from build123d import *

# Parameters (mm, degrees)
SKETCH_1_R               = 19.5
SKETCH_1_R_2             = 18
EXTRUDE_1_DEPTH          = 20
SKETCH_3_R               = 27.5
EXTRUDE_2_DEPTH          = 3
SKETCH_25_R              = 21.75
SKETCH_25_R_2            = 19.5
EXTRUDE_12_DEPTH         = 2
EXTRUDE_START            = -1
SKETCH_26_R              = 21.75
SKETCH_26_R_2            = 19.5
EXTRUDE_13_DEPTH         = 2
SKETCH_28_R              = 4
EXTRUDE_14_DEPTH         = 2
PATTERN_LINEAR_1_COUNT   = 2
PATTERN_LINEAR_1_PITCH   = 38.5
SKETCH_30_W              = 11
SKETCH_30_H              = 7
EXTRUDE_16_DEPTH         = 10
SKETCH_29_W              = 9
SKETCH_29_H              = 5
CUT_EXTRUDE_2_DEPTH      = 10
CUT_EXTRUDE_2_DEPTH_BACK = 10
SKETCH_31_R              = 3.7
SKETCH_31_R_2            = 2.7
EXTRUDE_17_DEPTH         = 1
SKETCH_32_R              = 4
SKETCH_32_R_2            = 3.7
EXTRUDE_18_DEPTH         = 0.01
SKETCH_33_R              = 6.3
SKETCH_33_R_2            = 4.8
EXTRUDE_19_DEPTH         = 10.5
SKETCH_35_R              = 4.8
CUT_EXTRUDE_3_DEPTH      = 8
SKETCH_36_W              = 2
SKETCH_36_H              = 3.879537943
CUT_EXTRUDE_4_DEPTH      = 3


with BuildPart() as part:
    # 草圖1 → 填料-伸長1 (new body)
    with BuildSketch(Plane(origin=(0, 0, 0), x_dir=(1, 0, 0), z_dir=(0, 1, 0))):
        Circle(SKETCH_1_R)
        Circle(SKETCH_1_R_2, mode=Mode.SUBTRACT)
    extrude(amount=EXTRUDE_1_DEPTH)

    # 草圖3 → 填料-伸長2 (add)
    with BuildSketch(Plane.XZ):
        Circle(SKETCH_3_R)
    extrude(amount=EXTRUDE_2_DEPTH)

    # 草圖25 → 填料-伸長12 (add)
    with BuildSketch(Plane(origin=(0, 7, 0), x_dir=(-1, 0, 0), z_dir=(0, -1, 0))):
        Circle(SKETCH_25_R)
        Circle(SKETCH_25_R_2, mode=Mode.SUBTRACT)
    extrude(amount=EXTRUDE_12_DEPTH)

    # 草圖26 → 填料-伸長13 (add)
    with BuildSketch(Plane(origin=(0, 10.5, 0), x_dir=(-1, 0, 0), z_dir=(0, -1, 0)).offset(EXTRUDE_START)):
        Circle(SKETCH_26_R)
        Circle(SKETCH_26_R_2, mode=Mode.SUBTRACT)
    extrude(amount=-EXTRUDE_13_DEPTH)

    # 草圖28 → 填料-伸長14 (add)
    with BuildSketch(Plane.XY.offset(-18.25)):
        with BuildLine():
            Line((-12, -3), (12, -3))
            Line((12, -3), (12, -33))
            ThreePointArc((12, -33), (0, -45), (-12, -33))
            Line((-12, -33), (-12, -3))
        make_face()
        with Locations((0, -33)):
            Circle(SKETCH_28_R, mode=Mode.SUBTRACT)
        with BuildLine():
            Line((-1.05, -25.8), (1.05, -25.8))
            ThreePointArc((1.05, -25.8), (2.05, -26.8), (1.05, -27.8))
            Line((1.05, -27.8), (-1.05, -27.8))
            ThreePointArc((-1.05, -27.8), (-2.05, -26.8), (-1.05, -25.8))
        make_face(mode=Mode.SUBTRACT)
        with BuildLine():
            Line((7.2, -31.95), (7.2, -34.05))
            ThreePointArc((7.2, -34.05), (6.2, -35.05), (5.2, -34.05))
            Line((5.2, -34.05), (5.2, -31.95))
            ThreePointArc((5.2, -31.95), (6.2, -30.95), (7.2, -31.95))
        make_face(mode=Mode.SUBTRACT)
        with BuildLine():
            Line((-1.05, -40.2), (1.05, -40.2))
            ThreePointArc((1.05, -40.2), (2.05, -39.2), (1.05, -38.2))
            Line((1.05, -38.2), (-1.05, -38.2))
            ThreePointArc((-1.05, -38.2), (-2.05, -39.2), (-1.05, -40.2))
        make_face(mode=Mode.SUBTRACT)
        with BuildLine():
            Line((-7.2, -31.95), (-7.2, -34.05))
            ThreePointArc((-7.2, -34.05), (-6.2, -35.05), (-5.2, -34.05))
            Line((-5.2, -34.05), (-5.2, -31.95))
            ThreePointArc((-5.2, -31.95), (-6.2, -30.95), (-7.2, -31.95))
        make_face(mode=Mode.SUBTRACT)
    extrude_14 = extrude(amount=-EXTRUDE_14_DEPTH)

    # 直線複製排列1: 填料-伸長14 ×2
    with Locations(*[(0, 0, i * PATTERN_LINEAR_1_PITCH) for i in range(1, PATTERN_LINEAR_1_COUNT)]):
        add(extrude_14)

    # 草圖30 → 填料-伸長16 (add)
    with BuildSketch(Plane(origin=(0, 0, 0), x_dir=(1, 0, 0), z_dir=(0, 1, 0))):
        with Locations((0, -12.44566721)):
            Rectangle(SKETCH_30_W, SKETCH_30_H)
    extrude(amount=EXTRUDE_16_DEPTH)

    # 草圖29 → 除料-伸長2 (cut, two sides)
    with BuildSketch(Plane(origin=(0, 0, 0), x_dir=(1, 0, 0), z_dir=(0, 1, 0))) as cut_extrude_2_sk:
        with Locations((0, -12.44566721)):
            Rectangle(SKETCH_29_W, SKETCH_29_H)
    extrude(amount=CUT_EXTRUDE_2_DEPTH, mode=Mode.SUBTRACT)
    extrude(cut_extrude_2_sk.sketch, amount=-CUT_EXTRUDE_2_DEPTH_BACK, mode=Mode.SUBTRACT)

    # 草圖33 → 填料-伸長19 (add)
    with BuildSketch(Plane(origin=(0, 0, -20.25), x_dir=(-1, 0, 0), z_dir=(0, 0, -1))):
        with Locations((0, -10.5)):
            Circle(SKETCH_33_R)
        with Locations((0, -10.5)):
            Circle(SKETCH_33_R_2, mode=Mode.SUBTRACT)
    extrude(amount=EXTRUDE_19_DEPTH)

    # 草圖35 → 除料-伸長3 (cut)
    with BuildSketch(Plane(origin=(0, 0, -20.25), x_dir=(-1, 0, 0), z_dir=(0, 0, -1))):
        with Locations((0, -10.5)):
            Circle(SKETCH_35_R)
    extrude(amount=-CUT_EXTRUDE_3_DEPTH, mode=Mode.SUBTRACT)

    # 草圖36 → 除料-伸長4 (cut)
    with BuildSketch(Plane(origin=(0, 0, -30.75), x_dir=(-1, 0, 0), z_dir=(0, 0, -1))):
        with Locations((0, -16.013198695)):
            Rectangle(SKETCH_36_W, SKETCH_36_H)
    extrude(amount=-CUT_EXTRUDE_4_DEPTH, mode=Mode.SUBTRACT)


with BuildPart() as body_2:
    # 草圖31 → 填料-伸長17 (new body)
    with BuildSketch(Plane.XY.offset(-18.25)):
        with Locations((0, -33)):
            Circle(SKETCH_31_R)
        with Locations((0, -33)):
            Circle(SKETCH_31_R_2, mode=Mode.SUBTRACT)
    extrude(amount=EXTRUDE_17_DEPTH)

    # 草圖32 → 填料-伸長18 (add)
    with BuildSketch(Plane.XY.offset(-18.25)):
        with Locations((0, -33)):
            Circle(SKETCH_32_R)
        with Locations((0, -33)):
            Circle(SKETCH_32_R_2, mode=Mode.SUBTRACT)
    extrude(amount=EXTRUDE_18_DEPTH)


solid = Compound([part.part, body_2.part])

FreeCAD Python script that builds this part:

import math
import FreeCAD as App
import Part
import Sketcher

V = App.Vector

doc = App.newDocument("Part")
params = doc.addObject("Spreadsheet::Sheet", "Params")
for row, (alias, value) in enumerate([
    ("sketch1_diameter", "39 mm"),
    ("sketch1_diameter2", "36 mm"),
    ("pad1_length", "20 mm"),
    ("sketch2_diameter", "55 mm"),
    ("pad2_length", "3 mm"),
    ("sketch3_diameter", "39 mm"),
    ("sketch3_diameter2", "43.5 mm"),
    ("pad3_length", "2 mm"),
    ("sketch4_diameter", "39 mm"),
    ("sketch4_diameter2", "43.5 mm"),
    ("pad4_length", "2 mm"),
    ("sketch5_diameter", "8 mm"),
    ("sketch5_radius", "12 mm"),
    ("sketch5_radius2", "1 mm"),
    ("sketch5_height", "30 mm"),
    ("sketch5_width", "2.1 mm"),
    ("pad5_length", "2 mm"),
    ("linearpattern_pitch", "38.5 mm"),
    ("sketch6_width", "11 mm"),
    ("sketch6_height", "7 mm"),
    ("pad6_length", "10 mm"),
    ("sketch7_width", "9 mm"),
    ("sketch7_height", "5 mm"),
    ("sketch8_diameter", "12.6 mm"),
    ("sketch8_diameter2", "9.6 mm"),
    ("pad7_length", "10.5 mm"),
    ("sketch9_diameter", "9.6 mm"),
    ("pocket2_length", "8 mm"),
    ("sketch10_width", "2 mm"),
    ("pocket3_length", "3 mm"),
    ("sketch11_diameter", "7.4 mm"),
    ("sketch11_diameter2", "5.4 mm"),
    ("pad8_length", "1 mm"),
    ("sketch12_diameter", "8 mm"),
    ("sketch12_diameter2", "7.4 mm"),
    ("pad9_length", "0.01 mm"),
], start=1):
    params.set(f"A{row}", alias)
    params.set(f"B{row}", "=" + value)
    params.setAlias(f"B{row}", alias)

body = doc.addObject("PartDesign::Body", "Body")

sketch1 = body.newObject("Sketcher::SketchObject", "Sketch")
sketch1.AttachmentSupport = (doc.getObject("XZ_Plane"), [""])
sketch1.MapMode = "FlatFace"
sketch1.addGeometry([
    Part.Circle(V(0, 0, 0), V(0, 0, 1), 20),
    Part.Circle(V(0, 0, 0), V(0, 0, 1), 18),
], False)
sketch1.addConstraint([
    Sketcher.Constraint("Coincident", 0, 3, -1, 1),
    Sketcher.Constraint("Coincident", 1, 3, -1, 1),
    Sketcher.Constraint("Diameter", 0, 39.0),
    Sketcher.Constraint("Diameter", 1, 36.0),
])
sketch1.setExpression("Constraints[2]", "Params.sketch1_diameter")
sketch1.setExpression("Constraints[3]", "Params.sketch1_diameter2")
pad1 = body.newObject("PartDesign::Pad", "Pad")
pad1.Profile = sketch1
pad1.setExpression("Length", "Params.pad1_length")
pad1.Reversed = True

sketch2 = body.newObject("Sketcher::SketchObject", "Sketch001")
sketch2.AttachmentSupport = (doc.getObject("XZ_Plane"), [""])
sketch2.MapMode = "FlatFace"
sketch2.addGeometry(Part.Circle(V(0, 0, 0), V(0, 0, 1), 28), False)
sketch2.addConstraint([
    Sketcher.Constraint("Coincident", 0, 3, -1, 1),
    Sketcher.Constraint("Diameter", 0, 55.0),
])
sketch2.setExpression("Constraints[1]", "Params.sketch2_diameter")
pad2 = body.newObject("PartDesign::Pad", "Pad001")
pad2.Profile = sketch2
pad2.setExpression("Length", "Params.pad2_length")

sketch3 = body.newObject("Sketcher::SketchObject", "Sketch002")
sketch3.AttachmentSupport = (doc.getObject("XZ_Plane"), [""])
sketch3.MapMode = "FlatFace"
sketch3.AttachmentOffset = App.Placement(V(0, 0, -7), App.Rotation())
sketch3.addGeometry([
    Part.Circle(V(0, 0, 0), V(0, 0, 1), 22),
    Part.Circle(V(0, 0, 0), V(0, 0, 1), 20),
], False)
sketch3.addConstraint([
    Sketcher.Constraint("Coincident", 0, 3, -1, 1),
    Sketcher.Constraint("Coincident", 1, 3, -1, 1),
    Sketcher.Constraint("Diameter", 1, 39.0),
    Sketcher.Constraint("Diameter", 0, 43.5),
])
sketch3.setExpression("Constraints[2]", "Params.sketch3_diameter")
sketch3.setExpression("Constraints[3]", "Params.sketch3_diameter2")
pad3 = body.newObject("PartDesign::Pad", "Pad002")
pad3.Profile = sketch3
pad3.setExpression("Length", "Params.pad3_length")

sketch4 = body.newObject("Sketcher::SketchObject", "Sketch003")
sketch4.AttachmentSupport = (doc.getObject("XZ_Plane"), [""])
sketch4.MapMode = "FlatFace"
sketch4.AttachmentOffset = App.Placement(V(0, 0, -11.5), App.Rotation())
sketch4.addGeometry([
    Part.Circle(V(0, 0, 0), V(0, 0, 1), 22),
    Part.Circle(V(0, 0, 0), V(0, 0, 1), 20),
], False)
sketch4.addConstraint([
    Sketcher.Constraint("Coincident", 0, 3, -1, 1),
    Sketcher.Constraint("Coincident", 1, 3, -1, 1),
    Sketcher.Constraint("Diameter", 1, 39.0),
    Sketcher.Constraint("Diameter", 0, 43.5),
])
sketch4.setExpression("Constraints[2]", "Params.sketch4_diameter")
sketch4.setExpression("Constraints[3]", "Params.sketch4_diameter2")
pad4 = body.newObject("PartDesign::Pad", "Pad003")
pad4.Profile = sketch4
pad4.setExpression("Length", "Params.pad4_length")
pad4.Reversed = True

sketch5 = body.newObject("Sketcher::SketchObject", "Sketch004")
sketch5.AttachmentSupport = (doc.getObject("XY_Plane"), [""])
sketch5.MapMode = "FlatFace"
sketch5.AttachmentOffset = App.Placement(V(0, 0, -18.25), App.Rotation())
sketch5.addGeometry([
    Part.LineSegment(V(12, -3, 0), V(-12, -3, 0)),
    Part.LineSegment(V(-12, -3, 0), V(-12, -33, 0)),
    Part.ArcOfCircle(Part.Circle(V(0, -33, 0), V(0, 0, 1), 12), math.radians(180), math.radians(360)),
    Part.LineSegment(V(12, -33, 0), V(12, -3, 0)),
    Part.ArcOfCircle(Part.Circle(V(-1.1, -39.2, 0), V(0, 0, 1), 1), math.radians(90), math.radians(270)),
    Part.LineSegment(V(-1.1, -38.2, 0), V(1.1, -38.2, 0)),
    Part.ArcOfCircle(Part.Circle(V(1.1, -39.2, 0), V(0, 0, 1), 1), math.radians(-90), math.radians(90)),
    Part.LineSegment(V(1.1, -40.2, 0), V(-1.1, -40.2, 0)),
    Part.LineSegment(V(7.2, -31.9, 0), V(7.2, -34, 0)),
    Part.ArcOfCircle(Part.Circle(V(6.2, -34, 0), V(0, 0, 1), 1), math.radians(180), math.radians(360)),
    Part.LineSegment(V(5.2, -34, 0), V(5.2, -31.9, 0)),
    Part.ArcOfCircle(Part.Circle(V(6.2, -31.9, 0), V(0, 0, 1), 1), math.radians(0), math.radians(180)),
    Part.Circle(V(0, -33, 0), V(0, 0, 1), 4),
    Part.ArcOfCircle(Part.Circle(V(-6.2, -31.9, 0), V(0, 0, 1), 1), math.radians(0), math.radians(180)),
    Part.LineSegment(V(-5.2, -31.9, 0), V(-5.2, -34, 0)),
    Part.ArcOfCircle(Part.Circle(V(-6.2, -34, 0), V(0, 0, 1), 1), math.radians(180), math.radians(360)),
    Part.LineSegment(V(-7.2, -34, 0), V(-7.2, -31.9, 0)),
    Part.LineSegment(V(-1.1, -25.8, 0), V(1.1, -25.8, 0)),
    Part.ArcOfCircle(Part.Circle(V(1.1, -26.8, 0), V(0, 0, 1), 1), math.radians(-90), math.radians(90)),
    Part.LineSegment(V(1.1, -27.8, 0), V(-1.1, -27.8, 0)),
    Part.ArcOfCircle(Part.Circle(V(-1.1, -26.8, 0), V(0, 0, 1), 1), math.radians(90), math.radians(270)),
], False)
sketch5.addConstraint([
    Sketcher.Constraint("Coincident", 0, 2, 1, 1),
    Sketcher.Constraint("Tangent", 1, 2, 2, 1),
    Sketcher.Constraint("Tangent", 2, 2, 3, 1),
    Sketcher.Constraint("Coincident", 3, 2, 0, 1),
    Sketcher.Constraint("Tangent", 4, 1, 5, 1),
    Sketcher.Constraint("Tangent", 5, 2, 6, 2),
    Sketcher.Constraint("Tangent", 6, 1, 7, 1),
    Sketcher.Constraint("Tangent", 7, 2, 4, 2),
    Sketcher.Constraint("Tangent", 8, 2, 9, 2),
    Sketcher.Constraint("Tangent", 9, 1, 10, 1),
    Sketcher.Constraint("Tangent", 10, 2, 11, 2),
    Sketcher.Constraint("Tangent", 11, 1, 8, 1),
    Sketcher.Constraint("Tangent", 13, 1, 14, 1),
    Sketcher.Constraint("Tangent", 14, 2, 15, 2),
    Sketcher.Constraint("Tangent", 15, 1, 16, 1),
    Sketcher.Constraint("Tangent", 16, 2, 13, 2),
    Sketcher.Constraint("Tangent", 17, 2, 18, 2),
    Sketcher.Constraint("Tangent", 18, 1, 19, 1),
    Sketcher.Constraint("Tangent", 19, 2, 20, 2),
    Sketcher.Constraint("Tangent", 20, 1, 17, 1),
    Sketcher.Constraint("Horizontal", 0),
    Sketcher.Constraint("Vertical", 1),
    Sketcher.Constraint("Vertical", 3),
    Sketcher.Constraint("Horizontal", 5),
    Sketcher.Constraint("Horizontal", 7),
    Sketcher.Constraint("Vertical", 8),
    Sketcher.Constraint("Vertical", 10),
    Sketcher.Constraint("Vertical", 14),
    Sketcher.Constraint("Vertical", 16),
    Sketcher.Constraint("Horizontal", 17),
    Sketcher.Constraint("Horizontal", 19),
    Sketcher.Constraint("Coincident", 12, 3, 2, 3),
    Sketcher.Constraint("Equal", 6, 9),
    Sketcher.Constraint("Equal", 11, 13),
    Sketcher.Constraint("Equal", 15, 18),
    Sketcher.Constraint("Symmetric", 11, 3, 13, 3, -2),
    Sketcher.Constraint("PointOnObject", 2, 3, -2),
    Sketcher.Constraint("Horizontal", 9, 3, 15, 3),
    Sketcher.Constraint("Vertical", 6, 3, 18, 3),
    Sketcher.Constraint("Vertical", 4, 3, 20, 3),
    Sketcher.Constraint("Equal", 19, 8),
    Sketcher.Constraint("Diameter", 12, 8.0),
    Sketcher.Constraint("Radius", 2, 12.0),
    Sketcher.Constraint("Radius", 4, 1.0),
    Sketcher.Constraint("DistanceY", 1, 2, 1, 1, 30.0),
    Sketcher.Constraint("DistanceX", 5, 1, 5, 2, 2.1),
    Sketcher.Constraint("DistanceY", 2, 3, -1, 1, 33.0),
    Sketcher.Constraint("DistanceY", 4, 3, -1, 1, 39.2),
    Sketcher.Constraint("DistanceX", -1, 1, 9, 3, 6.2),
    Sketcher.Constraint("DistanceY", 18, 3, -1, 1, 26.8),
    Sketcher.Constraint("DistanceX", 4, 3, -1, 1, 1.05),
    Sketcher.Constraint("DistanceY", 9, 3, -1, 1, 34.05),
])
sketch5.setExpression("Constraints[41]", "Params.sketch5_diameter")
sketch5.setExpression("Constraints[42]", "Params.sketch5_radius")
sketch5.setExpression("Constraints[43]", "Params.sketch5_radius2")
sketch5.setExpression("Constraints[44]", "Params.sketch5_height")
sketch5.setExpression("Constraints[45]", "Params.sketch5_width")
pad5 = body.newObject("PartDesign::Pad", "Pad004")
pad5.Profile = sketch5
pad5.setExpression("Length", "Params.pad5_length")
pad5.Reversed = True
doc.recompute()

linearpattern = body.newObject("PartDesign::LinearPattern", "LinearPattern")
linearpattern.Originals = [pad5]
linearpattern.Direction = (doc.getObject("Z_Axis"), [""])
linearpattern.Mode = "offset"
linearpattern.setExpression("Offset", "Params.linearpattern_pitch")
linearpattern.Occurrences = 2
body.Tip = linearpattern

sketch6 = body.newObject("Sketcher::SketchObject", "Sketch005")
sketch6.AttachmentSupport = (doc.getObject("XZ_Plane"), [""])
sketch6.MapMode = "FlatFace"
sketch6.addGeometry([
    Part.LineSegment(V(-6, 9, 0), V(-6, 16, 0)),
    Part.LineSegment(V(-6, 16, 0), V(6, 16, 0)),
    Part.LineSegment(V(6, 16, 0), V(6, 9, 0)),
    Part.LineSegment(V(6, 9, 0), V(-6, 9, 0)),
], False)
sketch6.addConstraint([
    Sketcher.Constraint("Coincident", 0, 2, 1, 1),
    Sketcher.Constraint("Coincident", 1, 2, 2, 1),
    Sketcher.Constraint("Coincident", 2, 2, 3, 1),
    Sketcher.Constraint("Coincident", 3, 2, 0, 1),
    Sketcher.Constraint("Vertical", 0),
    Sketcher.Constraint("Horizontal", 1),
    Sketcher.Constraint("Vertical", 2),
    Sketcher.Constraint("Horizontal", 3),
    Sketcher.Constraint("DistanceX", 1, 1, 1, 2, 11.0),
    Sketcher.Constraint("DistanceY", 0, 1, 0, 2, 7.0),
    Sketcher.Constraint("DistanceX", 0, 2, -1, 1, 5.5),
    Sketcher.Constraint("DistanceY", -1, 1, 0, 2, 15.945667),
])
sketch6.setExpression("Constraints[8]", "Params.sketch6_width")
sketch6.setExpression("Constraints[9]", "Params.sketch6_height")
pad6 = body.newObject("PartDesign::Pad", "Pad005")
pad6.Profile = sketch6
pad6.setExpression("Length", "Params.pad6_length")
pad6.Reversed = True

sketch7 = body.newObject("Sketcher::SketchObject", "Sketch006")
sketch7.AttachmentSupport = (doc.getObject("XZ_Plane"), [""])
sketch7.MapMode = "FlatFace"
sketch7.addGeometry([
    Part.LineSegment(V(-4, 10, 0), V(-4, 15, 0)),
    Part.LineSegment(V(-4, 15, 0), V(4, 15, 0)),
    Part.LineSegment(V(4, 15, 0), V(4, 10, 0)),
    Part.LineSegment(V(4, 10, 0), V(-4, 10, 0)),
], False)
sketch7.addConstraint([
    Sketcher.Constraint("Coincident", 0, 2, 1, 1),
    Sketcher.Constraint("Coincident", 1, 2, 2, 1),
    Sketcher.Constraint("Coincident", 2, 2, 3, 1),
    Sketcher.Constraint("Coincident", 3, 2, 0, 1),
    Sketcher.Constraint("Vertical", 0),
    Sketcher.Constraint("Horizontal", 1),
    Sketcher.Constraint("Vertical", 2),
    Sketcher.Constraint("Horizontal", 3),
    Sketcher.Constraint("DistanceX", 1, 1, 1, 2, 9.0),
    Sketcher.Constraint("DistanceY", 0, 1, 0, 2, 5.0),
    Sketcher.Constraint("DistanceX", 0, 2, -1, 1, 4.5),
    Sketcher.Constraint("DistanceY", -1, 1, 0, 2, 14.945667),
])
sketch7.setExpression("Constraints[8]", "Params.sketch7_width")
sketch7.setExpression("Constraints[9]", "Params.sketch7_height")
pocket1 = body.newObject("PartDesign::Pocket", "Pocket")
pocket1.Profile = sketch7
pocket1.Type = "ThroughAll"
pocket1.Midplane = True

sketch8 = body.newObject("Sketcher::SketchObject", "Sketch007")
sketch8.AttachmentSupport = (doc.getObject("XY_Plane"), [""])
sketch8.MapMode = "FlatFace"
sketch8.AttachmentOffset = App.Placement(V(0, 0, -20.25), App.Rotation())
sketch8.addGeometry([
    Part.Circle(V(0, -10.5, 0), V(0, 0, 1), 6.3),
    Part.Circle(V(0, -10.5, 0), V(0, 0, 1), 4.8),
], False)
sketch8.addConstraint([
    Sketcher.Constraint("Coincident", 1, 3, 0, 3),
    Sketcher.Constraint("PointOnObject", 0, 3, -2),
    Sketcher.Constraint("Diameter", 0, 12.6),
    Sketcher.Constraint("Diameter", 1, 9.6),
    Sketcher.Constraint("DistanceY", 0, 3, -1, 1, 10.5),
])
sketch8.setExpression("Constraints[2]", "Params.sketch8_diameter")
sketch8.setExpression("Constraints[3]", "Params.sketch8_diameter2")
pad7 = body.newObject("PartDesign::Pad", "Pad006")
pad7.Profile = sketch8
pad7.setExpression("Length", "Params.pad7_length")
pad7.Reversed = True

sketch9 = body.newObject("Sketcher::SketchObject", "Sketch008")
sketch9.AttachmentSupport = (doc.getObject("XY_Plane"), [""])
sketch9.MapMode = "FlatFace"
sketch9.AttachmentOffset = App.Placement(V(0, 0, -20.25), App.Rotation())
sketch9.addGeometry(Part.Circle(V(0, -10.5, 0), V(0, 0, 1), 4.8), False)
sketch9.addConstraint([
    Sketcher.Constraint("PointOnObject", 0, 3, -2),
    Sketcher.Constraint("Diameter", 0, 9.6),
    Sketcher.Constraint("DistanceY", 0, 3, -1, 1, 10.5),
])
sketch9.setExpression("Constraints[1]", "Params.sketch9_diameter")
pocket2 = body.newObject("PartDesign::Pocket", "Pocket001")
pocket2.Profile = sketch9
pocket2.setExpression("Length", "Params.pocket2_length")
pocket2.Reversed = True

sketch10 = body.newObject("Sketcher::SketchObject", "Sketch009")
sketch10.AttachmentSupport = (doc.getObject("XY_Plane"), [""])
sketch10.MapMode = "FlatFace"
sketch10.AttachmentOffset = App.Placement(V(0, 0, -30.75), App.Rotation())
sketch10.addGeometry([
    Part.LineSegment(V(1, -14.1, 0), V(1, -18, 0)),
    Part.LineSegment(V(1, -18, 0), V(-1, -18, 0)),
    Part.LineSegment(V(-1, -18, 0), V(-1, -14.1, 0)),
    Part.LineSegment(V(-1, -14.1, 0), V(1, -14.1, 0)),
], False)
sketch10.addConstraint([
    Sketcher.Constraint("Coincident", 0, 2, 1, 1),
    Sketcher.Constraint("Coincident", 1, 2, 2, 1),
    Sketcher.Constraint("Coincident", 2, 2, 3, 1),
    Sketcher.Constraint("Coincident", 3, 2, 0, 1),
    Sketcher.Constraint("Vertical", 0),
    Sketcher.Constraint("Horizontal", 1),
    Sketcher.Constraint("Vertical", 2),
    Sketcher.Constraint("Horizontal", 3),
    Sketcher.Constraint("DistanceX", 1, 2, 1, 1, 2.0),
    Sketcher.Constraint("DistanceX", -1, 1, 0, 2, 1.0),
    Sketcher.Constraint("DistanceY", 0, 2, 0, 1, 3.879538),
    Sketcher.Constraint("DistanceY", 2, 2, -1, 1, 14.07343),
])
sketch10.setExpression("Constraints[8]", "Params.sketch10_width")
pocket3 = body.newObject("PartDesign::Pocket", "Pocket002")
pocket3.Profile = sketch10
pocket3.setExpression("Length", "Params.pocket3_length")
pocket3.Reversed = True
body2 = doc.addObject("PartDesign::Body", "Body001")

sketch11 = body2.newObject("Sketcher::SketchObject", "Sketch010")
sketch11.AttachmentSupport = (doc.getObject("XY_Plane001"), [""])
sketch11.MapMode = "FlatFace"
sketch11.AttachmentOffset = App.Placement(V(0, 0, -18.25), App.Rotation())
sketch11.addGeometry([
    Part.Circle(V(0, -33, 0), V(0, 0, 1), 3.7),
    Part.Circle(V(0, -33, 0), V(0, 0, 1), 2.7),
], False)
sketch11.addConstraint([
    Sketcher.Constraint("Coincident", 1, 3, 0, 3),
    Sketcher.Constraint("PointOnObject", 0, 3, -2),
    Sketcher.Constraint("Diameter", 0, 7.4),
    Sketcher.Constraint("Diameter", 1, 5.4),
    Sketcher.Constraint("DistanceY", 0, 3, -1, 1, 33.0),
])
sketch11.setExpression("Constraints[2]", "Params.sketch11_diameter")
sketch11.setExpression("Constraints[3]", "Params.sketch11_diameter2")
pad8 = body2.newObject("PartDesign::Pad", "Pad007")
pad8.Profile = sketch11
pad8.setExpression("Length", "Params.pad8_length")

sketch12 = body2.newObject("Sketcher::SketchObject", "Sketch011")
sketch12.AttachmentSupport = (doc.getObject("XY_Plane001"), [""])
sketch12.MapMode = "FlatFace"
sketch12.AttachmentOffset = App.Placement(V(0, 0, -18.25), App.Rotation())
sketch12.addGeometry([
    Part.Circle(V(0, -33, 0), V(0, 0, 1), 4),
    Part.Circle(V(0, -33, 0), V(0, 0, 1), 3.7),
], False)
sketch12.addConstraint([
    Sketcher.Constraint("Coincident", 1, 3, 0, 3),
    Sketcher.Constraint("PointOnObject", 0, 3, -2),
    Sketcher.Constraint("Diameter", 0, 8.0),
    Sketcher.Constraint("Diameter", 1, 7.4),
    Sketcher.Constraint("DistanceY", 0, 3, -1, 1, 33.0),
])
sketch12.setExpression("Constraints[2]", "Params.sketch12_diameter")
sketch12.setExpression("Constraints[3]", "Params.sketch12_diameter2")
pad9 = body2.newObject("PartDesign::Pad", "Pad008")
pad9.Profile = sketch12
pad9.setExpression("Length", "Params.pad9_length")

doc.recompute()
